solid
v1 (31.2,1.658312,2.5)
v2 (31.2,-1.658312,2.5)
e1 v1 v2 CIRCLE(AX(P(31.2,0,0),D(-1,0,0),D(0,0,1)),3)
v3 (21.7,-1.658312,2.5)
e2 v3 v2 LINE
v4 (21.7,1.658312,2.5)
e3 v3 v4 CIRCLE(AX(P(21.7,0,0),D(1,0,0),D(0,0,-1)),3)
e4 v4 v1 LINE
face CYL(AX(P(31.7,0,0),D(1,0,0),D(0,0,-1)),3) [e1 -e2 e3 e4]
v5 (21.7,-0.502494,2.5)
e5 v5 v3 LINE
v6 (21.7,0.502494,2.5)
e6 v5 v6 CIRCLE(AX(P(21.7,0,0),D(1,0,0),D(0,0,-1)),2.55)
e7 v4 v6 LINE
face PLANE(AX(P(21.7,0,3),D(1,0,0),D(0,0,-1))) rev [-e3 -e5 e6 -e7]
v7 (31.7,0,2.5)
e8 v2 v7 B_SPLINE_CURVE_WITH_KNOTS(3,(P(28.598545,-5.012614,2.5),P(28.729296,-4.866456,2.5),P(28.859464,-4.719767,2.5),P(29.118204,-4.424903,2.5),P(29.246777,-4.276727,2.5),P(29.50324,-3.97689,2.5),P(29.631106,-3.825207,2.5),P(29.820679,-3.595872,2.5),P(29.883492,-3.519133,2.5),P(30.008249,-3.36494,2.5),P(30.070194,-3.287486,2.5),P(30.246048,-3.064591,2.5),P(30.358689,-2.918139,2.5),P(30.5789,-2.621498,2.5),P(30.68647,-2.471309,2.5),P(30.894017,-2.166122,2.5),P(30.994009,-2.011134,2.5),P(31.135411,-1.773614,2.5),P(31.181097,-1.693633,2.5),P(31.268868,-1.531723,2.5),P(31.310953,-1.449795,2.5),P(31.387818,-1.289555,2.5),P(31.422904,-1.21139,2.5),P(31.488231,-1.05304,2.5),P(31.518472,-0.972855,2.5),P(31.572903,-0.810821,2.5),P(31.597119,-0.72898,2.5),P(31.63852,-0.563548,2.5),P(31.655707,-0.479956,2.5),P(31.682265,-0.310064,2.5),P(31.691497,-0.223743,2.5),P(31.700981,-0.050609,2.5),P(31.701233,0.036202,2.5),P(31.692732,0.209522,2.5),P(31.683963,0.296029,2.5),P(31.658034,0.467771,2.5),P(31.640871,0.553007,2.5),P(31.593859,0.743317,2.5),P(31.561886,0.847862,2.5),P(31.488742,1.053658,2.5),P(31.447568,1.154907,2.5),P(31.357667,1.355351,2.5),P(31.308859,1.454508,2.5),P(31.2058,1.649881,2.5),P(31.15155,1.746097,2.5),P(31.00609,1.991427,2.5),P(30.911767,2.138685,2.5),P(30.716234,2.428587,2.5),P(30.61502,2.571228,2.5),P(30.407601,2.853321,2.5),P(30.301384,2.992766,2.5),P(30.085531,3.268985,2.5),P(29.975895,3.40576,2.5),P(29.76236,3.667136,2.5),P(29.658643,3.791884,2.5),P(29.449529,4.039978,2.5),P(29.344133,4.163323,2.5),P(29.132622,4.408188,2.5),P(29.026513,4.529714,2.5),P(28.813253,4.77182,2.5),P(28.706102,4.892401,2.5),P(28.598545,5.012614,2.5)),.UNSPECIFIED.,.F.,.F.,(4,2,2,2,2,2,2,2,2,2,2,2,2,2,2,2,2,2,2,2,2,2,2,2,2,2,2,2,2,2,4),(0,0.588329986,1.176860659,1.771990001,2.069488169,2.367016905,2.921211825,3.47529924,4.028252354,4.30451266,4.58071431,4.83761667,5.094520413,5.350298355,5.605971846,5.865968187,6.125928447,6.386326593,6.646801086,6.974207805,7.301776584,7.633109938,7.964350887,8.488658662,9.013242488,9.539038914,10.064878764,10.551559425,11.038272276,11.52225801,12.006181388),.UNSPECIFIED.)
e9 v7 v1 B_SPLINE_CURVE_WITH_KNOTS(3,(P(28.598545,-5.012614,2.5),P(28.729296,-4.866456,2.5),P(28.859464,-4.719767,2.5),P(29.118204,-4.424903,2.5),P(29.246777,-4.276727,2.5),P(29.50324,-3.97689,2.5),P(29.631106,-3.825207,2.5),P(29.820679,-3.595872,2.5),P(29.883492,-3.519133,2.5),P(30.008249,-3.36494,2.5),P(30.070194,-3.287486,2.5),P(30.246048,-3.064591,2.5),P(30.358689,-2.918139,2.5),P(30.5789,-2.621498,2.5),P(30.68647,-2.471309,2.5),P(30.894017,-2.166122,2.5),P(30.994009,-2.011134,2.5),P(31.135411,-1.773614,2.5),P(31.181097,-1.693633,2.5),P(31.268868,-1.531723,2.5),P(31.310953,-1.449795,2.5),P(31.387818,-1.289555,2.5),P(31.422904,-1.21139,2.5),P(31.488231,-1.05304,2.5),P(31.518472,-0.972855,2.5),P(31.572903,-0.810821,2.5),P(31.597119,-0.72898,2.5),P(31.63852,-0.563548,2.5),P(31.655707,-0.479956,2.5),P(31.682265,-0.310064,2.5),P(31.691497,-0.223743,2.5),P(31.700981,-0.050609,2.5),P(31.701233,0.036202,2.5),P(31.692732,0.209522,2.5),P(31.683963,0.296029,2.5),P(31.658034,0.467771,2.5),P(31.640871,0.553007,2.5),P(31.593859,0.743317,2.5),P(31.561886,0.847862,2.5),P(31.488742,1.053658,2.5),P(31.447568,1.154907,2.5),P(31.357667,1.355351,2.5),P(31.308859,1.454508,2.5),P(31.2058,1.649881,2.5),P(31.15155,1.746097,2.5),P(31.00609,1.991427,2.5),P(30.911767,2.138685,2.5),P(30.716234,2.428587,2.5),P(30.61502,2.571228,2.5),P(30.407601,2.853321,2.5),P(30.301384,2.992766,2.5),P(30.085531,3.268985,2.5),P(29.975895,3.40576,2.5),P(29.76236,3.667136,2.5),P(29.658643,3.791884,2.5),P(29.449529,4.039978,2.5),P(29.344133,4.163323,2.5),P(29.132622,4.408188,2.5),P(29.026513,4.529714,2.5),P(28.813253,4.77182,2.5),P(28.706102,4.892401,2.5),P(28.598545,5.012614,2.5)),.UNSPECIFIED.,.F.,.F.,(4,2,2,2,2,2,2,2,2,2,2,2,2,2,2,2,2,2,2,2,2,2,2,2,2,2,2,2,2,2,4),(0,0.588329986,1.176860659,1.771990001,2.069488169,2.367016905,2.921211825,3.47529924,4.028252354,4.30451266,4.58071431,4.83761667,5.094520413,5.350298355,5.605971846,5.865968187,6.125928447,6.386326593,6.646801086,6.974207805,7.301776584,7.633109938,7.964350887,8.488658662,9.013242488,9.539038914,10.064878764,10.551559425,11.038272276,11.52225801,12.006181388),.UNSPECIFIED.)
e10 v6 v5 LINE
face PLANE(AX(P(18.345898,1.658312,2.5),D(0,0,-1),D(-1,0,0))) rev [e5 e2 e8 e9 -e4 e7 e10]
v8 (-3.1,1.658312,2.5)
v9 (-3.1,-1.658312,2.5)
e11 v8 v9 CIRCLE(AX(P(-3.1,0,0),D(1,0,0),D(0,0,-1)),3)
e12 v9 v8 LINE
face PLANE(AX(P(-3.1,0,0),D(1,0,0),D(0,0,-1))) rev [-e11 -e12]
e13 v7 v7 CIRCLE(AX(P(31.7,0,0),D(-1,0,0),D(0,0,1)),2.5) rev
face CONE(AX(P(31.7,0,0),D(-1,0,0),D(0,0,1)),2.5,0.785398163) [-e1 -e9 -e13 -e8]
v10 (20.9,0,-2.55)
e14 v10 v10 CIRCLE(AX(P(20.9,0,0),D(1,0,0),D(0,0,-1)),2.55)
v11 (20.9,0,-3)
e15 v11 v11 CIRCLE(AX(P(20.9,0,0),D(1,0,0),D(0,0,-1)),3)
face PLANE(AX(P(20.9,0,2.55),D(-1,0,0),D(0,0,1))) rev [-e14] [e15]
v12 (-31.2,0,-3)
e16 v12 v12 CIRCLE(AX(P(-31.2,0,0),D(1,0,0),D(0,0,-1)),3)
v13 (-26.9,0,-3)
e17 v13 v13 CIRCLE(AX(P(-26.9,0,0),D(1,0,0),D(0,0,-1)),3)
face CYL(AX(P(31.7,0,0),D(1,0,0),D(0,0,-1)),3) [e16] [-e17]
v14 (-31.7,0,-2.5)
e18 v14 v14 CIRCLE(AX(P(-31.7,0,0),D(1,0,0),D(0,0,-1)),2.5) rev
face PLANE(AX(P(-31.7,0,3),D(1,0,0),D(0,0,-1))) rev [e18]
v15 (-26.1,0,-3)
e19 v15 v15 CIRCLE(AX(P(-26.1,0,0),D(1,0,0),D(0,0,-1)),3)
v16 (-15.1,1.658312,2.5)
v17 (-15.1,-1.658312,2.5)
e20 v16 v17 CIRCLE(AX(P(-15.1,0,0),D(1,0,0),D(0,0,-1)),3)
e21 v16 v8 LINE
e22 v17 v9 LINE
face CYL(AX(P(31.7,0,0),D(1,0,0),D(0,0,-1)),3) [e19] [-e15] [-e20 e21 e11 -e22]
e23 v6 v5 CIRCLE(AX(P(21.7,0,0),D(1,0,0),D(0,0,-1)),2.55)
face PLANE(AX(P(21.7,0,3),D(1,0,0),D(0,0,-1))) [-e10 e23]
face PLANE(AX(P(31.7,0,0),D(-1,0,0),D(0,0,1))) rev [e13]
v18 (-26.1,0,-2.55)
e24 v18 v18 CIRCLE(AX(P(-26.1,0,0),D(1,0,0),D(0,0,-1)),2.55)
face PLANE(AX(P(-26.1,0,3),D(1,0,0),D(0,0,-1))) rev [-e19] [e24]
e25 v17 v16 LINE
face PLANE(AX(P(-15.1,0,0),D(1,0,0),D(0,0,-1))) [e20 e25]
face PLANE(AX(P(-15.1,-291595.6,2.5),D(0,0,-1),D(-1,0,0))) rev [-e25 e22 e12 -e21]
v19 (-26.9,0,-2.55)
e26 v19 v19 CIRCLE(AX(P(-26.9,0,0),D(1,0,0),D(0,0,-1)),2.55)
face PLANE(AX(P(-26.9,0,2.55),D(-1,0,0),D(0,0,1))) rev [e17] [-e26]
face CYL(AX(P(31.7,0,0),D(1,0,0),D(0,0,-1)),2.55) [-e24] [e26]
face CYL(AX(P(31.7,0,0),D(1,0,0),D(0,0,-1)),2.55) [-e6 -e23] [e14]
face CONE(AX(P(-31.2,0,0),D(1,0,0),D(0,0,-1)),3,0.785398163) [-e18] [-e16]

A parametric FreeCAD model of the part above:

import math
import FreeCAD as App
import Part
import Sketcher

V = App.Vector


def edges_at(feature, points):
    """Names of the edges that pass closest to the given points."""
    edges = feature.Shape.Edges
    near = lambda p: min(range(len(edges)), key=lambda i: edges[i].distToShape(Part.Vertex(*p))[0])
    return sorted({f"Edge{near(p) + 1}" for p in points})

doc = App.newDocument("Part")
body = doc.addObject("PartDesign::Body", "Body")

# Sketch on XZ plane
sketch1 = doc.addObject("Sketcher::SketchObject", "Sketch")
body.addObject(sketch1)
sketch1.AttachmentSupport = (doc.XZ_Plane, [""])
sketch1.MapMode = "FlatFace"
sketch1.addGeometry([
    Part.LineSegment(V(31.7, 3, 0), V(31.7, 0, 0)),  # 0
    Part.LineSegment(V(31.7, 0, 0), V(-31.7, 0, 0)),  # 1
    Part.LineSegment(V(-31.7, 0, 0), V(-31.7, 3, 0)),  # 2
    Part.LineSegment(V(-31.7, 3, 0), V(-26.9, 3, 0)),  # 3
    Part.LineSegment(V(-26.9, 3, 0), V(-26.9, 2.55, 0)),  # 4
    Part.LineSegment(V(-26.9, 2.55, 0), V(-26.1, 2.55, 0)),  # 5
    Part.LineSegment(V(-26.1, 2.55, 0), V(-26.1, 3, 0)),  # 6
    Part.LineSegment(V(-26.1, 3, 0), V(20.9, 3, 0)),  # 7
    Part.LineSegment(V(20.9, 3, 0), V(20.9, 2.55, 0)),  # 8
    Part.LineSegment(V(20.9, 2.55, 0), V(21.7, 2.55, 0)),  # 9
    Part.LineSegment(V(21.7, 2.55, 0), V(21.7, 3, 0)),  # 10
    Part.LineSegment(V(21.7, 3, 0), V(31.7, 3, 0)),  # 11
], False)
sketch1.addConstraint([
    Sketcher.Constraint("Coincident", 0, 2, 1, 1),
    Sketcher.Constraint("Coincident", 1, 2, 2, 1),
    Sketcher.Constraint("Coincident", 2, 2, 3, 1),
    Sketcher.Constraint("Coincident", 3, 2, 4, 1),
    Sketcher.Constraint("Coincident", 4, 2, 5, 1),
    Sketcher.Constraint("Coincident", 5, 2, 6, 1),
    Sketcher.Constraint("Coincident", 6, 2, 7, 1),
    Sketcher.Constraint("Coincident", 7, 2, 8, 1),
    Sketcher.Constraint("Coincident", 8, 2, 9, 1),
    Sketcher.Constraint("Coincident", 9, 2, 10, 1),
    Sketcher.Constraint("Coincident", 10, 2, 11, 1),
    Sketcher.Constraint("Coincident", 11, 2, 0, 1),
    Sketcher.Constraint("Vertical", 0),
    Sketcher.Constraint("Horizontal", 1),
    Sketcher.Constraint("Vertical", 2),
    Sketcher.Constraint("Horizontal", 3),
    Sketcher.Constraint("Vertical", 4),
    Sketcher.Constraint("Horizontal", 5),
    Sketcher.Constraint("Vertical", 6),
    Sketcher.Constraint("Horizontal", 7),
    Sketcher.Constraint("Vertical", 8),
    Sketcher.Constraint("Horizontal", 9),
    Sketcher.Constraint("Vertical", 10),
    Sketcher.Constraint("Horizontal", 11),
    Sketcher.Constraint("Symmetric", 0, 2, 1, 2, -1, 1),
    Sketcher.Constraint("Horizontal", 3, 2, 6, 2),
    Sketcher.Constraint("Horizontal", 5, 2, 8, 2),
    Sketcher.Constraint("Horizontal", 7, 2, 10, 2),
    Sketcher.Constraint("Equal", 5, 9),
    Sketcher.Constraint("DistanceX", 7, 1, 7, 2, 47.0),
    Sketcher.Constraint("DistanceX", 11, 1, 11, 2, 10.0),
    Sketcher.Constraint("DistanceY", 0, 2, 0, 1, 3.0),
    Sketcher.Constraint("DistanceX", 1, 2, 1, 1, 63.4),
    Sketcher.Constraint("DistanceX", 3, 1, 3, 2, 4.8),
    Sketcher.Constraint("DistanceY", 4, 2, 4, 1, 0.45),
])
revolution = doc.addObject("PartDesign::Revolution", "Revolution")
body.addObject(revolution)
revolution.Profile = sketch1
revolution.ReferenceAxis = (sketch1, ["H_Axis"])
revolution.Angle = 360
doc.recompute()

chamfer = doc.addObject("PartDesign::Chamfer", "Chamfer")
body.addObject(chamfer)
chamfer.Base = (revolution, edges_at(revolution, [(31.7, 0, 3), (-31.7, 0, 3)]))
chamfer.Size = 0.5

# Sketch on YZ plane
sketch2 = doc.addObject("Sketcher::SketchObject", "Sketch001")
body.addObject(sketch2)
sketch2.AttachmentSupport = (doc.YZ_Plane, [""])
sketch2.MapMode = "FlatFace"
sketch2.AttachmentOffset = App.Placement(V(0, 0, 21.7), App.Rotation())
sketch2.addGeometry([
    Part.LineSegment(V(-1.7, 2.5, 0), V(1.7, 2.5, 0)),
    Part.ArcOfCircle(Part.Circle(V(0, 0, 0), V(0, 0, 1), 3), math.radians(56), math.radians(124)),
], False)
sketch2.addConstraint([
    Sketcher.Constraint("Coincident", 0, 1, 1, 2),
    Sketcher.Constraint("Coincident", 1, 1, 0, 2),
    Sketcher.Constraint("Horizontal", 0),
    Sketcher.Constraint("Coincident", 1, 3, -1, 1),
    Sketcher.Constraint("Radius", 1, 3.0),
    Sketcher.Constraint("DistanceY", -1, 1, 0, 1, 2.5),
])
pocket1 = doc.addObject("PartDesign::Pocket", "Pocket")
body.addObject(pocket1)
pocket1.Profile = sketch2
pocket1.Length = 10
pocket1.Reversed = True

# Sketch on YZ plane
sketch3 = doc.addObject("Sketcher::SketchObject", "Sketch002")
body.addObject(sketch3)
sketch3.AttachmentSupport = (doc.YZ_Plane, [""])
sketch3.MapMode = "FlatFace"
sketch3.AttachmentOffset = App.Placement(V(0, 0, -15.1), App.Rotation())
sketch3.addGeometry([
    Part.LineSegment(V(-1.7, 2.5, 0), V(1.7, 2.5, 0)),
    Part.ArcOfCircle(Part.Circle(V(0, 0, 0), V(0, 0, 1), 3), math.radians(56), math.radians(124)),
], False)
sketch3.addConstraint([
    Sketcher.Constraint("Coincident", 0, 1, 1, 2),
    Sketcher.Constraint("Coincident", 1, 1, 0, 2),
    Sketcher.Constraint("Horizontal", 0),
    Sketcher.Constraint("Coincident", 1, 3, -1, 1),
    Sketcher.Constraint("Radius", 1, 3.0),
    Sketcher.Constraint("DistanceY", -1, 1, 0, 1, 2.5),
])
pocket2 = doc.addObject("PartDesign::Pocket", "Pocket001")
body.addObject(pocket2)
pocket2.Profile = sketch3
pocket2.Length = 12
pocket2.Reversed = True

doc.recompute()
